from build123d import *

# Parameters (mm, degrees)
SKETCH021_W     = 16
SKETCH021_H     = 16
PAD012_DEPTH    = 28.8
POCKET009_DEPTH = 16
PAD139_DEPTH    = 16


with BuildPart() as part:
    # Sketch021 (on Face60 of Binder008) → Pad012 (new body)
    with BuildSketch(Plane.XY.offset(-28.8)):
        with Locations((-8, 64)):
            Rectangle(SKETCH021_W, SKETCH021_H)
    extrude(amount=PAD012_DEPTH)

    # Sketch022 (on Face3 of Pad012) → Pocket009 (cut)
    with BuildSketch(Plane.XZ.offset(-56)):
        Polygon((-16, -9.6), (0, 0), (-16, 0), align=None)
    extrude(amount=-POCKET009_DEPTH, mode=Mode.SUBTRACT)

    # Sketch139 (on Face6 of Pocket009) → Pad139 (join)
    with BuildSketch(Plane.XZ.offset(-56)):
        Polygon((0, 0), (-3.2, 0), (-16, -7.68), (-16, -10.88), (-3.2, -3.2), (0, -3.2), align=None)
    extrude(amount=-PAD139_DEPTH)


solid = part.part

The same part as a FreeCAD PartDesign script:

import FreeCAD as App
import Part
import Sketcher

V = App.Vector

doc = App.newDocument("Part")
body = doc.addObject("PartDesign::Body", "Body")

sketch1 = doc.addObject("Sketcher::SketchObject", "Sketch")
body.addObject(sketch1)
sketch1.AttachmentSupport = (doc.XY_Plane, [""])
sketch1.MapMode = "FlatFace"
sketch1.AttachmentOffset = App.Placement(V(0, 0, -28.8), App.Rotation())
sketch1.addGeometry(Part.LineSegment(V(-16, 72, 0), V(-16, 56, 0)), False)
sketch1.addGeometry(Part.LineSegment(V(-16, 56, 0), V(0, 56, 0)), False)
sketch1.addGeometry(Part.LineSegment(V(0, 56, 0), V(0, 72, 0)), False)
sketch1.addGeometry(Part.LineSegment(V(0, 72, 0), V(-16, 72, 0)), False)
sketch1.addConstraint(Sketcher.Constraint("Coincident", 0, 2, 1, 1))
sketch1.addConstraint(Sketcher.Constraint("Coincident", 1, 2, 2, 1))
sketch1.addConstraint(Sketcher.Constraint("Coincident", 2, 2, 3, 1))
sketch1.addConstraint(Sketcher.Constraint("Coincident", 3, 2, 0, 1))
sketch1.addConstraint(Sketcher.Constraint("Vertical", 0))
sketch1.addConstraint(Sketcher.Constraint("Horizontal", 1))
sketch1.addConstraint(Sketcher.Constraint("Vertical", 2))
sketch1.addConstraint(Sketcher.Constraint("Horizontal", 3))
sketch1.addConstraint(Sketcher.Constraint("PointOnObject", 1, 2, -2))
sketch1.addConstraint(Sketcher.Constraint("Equal", 3, 0))
sketch1.addConstraint(Sketcher.Constraint("DistanceX", 1, 1, 1, 2, 16.0))
sketch1.addConstraint(Sketcher.Constraint("DistanceY", -1, 1, 0, 2, 56.0))
pad1 = doc.addObject("PartDesign::Pad", "Pad")
body.addObject(pad1)
pad1.Profile = sketch1
pad1.Length = 28.8

sketch2 = doc.addObject("Sketcher::SketchObject", "Sketch001")
body.addObject(sketch2)
sketch2.AttachmentSupport = (doc.XZ_Plane, [""])
sketch2.MapMode = "FlatFace"
sketch2.AttachmentOffset = App.Placement(V(0, 0, -56), App.Rotation())
sketch2.addGeometry(Part.LineSegment(V(-16, -9.6, 0), V(0, 0, 0)), False)
sketch2.addGeometry(Part.LineSegment(V(0, 0, 0), V(-16, 0, 0)), False)
sketch2.addGeometry(Part.LineSegment(V(-16, 0, 0), V(-16, -9.6, 0)), False)
sketch2.addConstraint(Sketcher.Constraint("Coincident", 0, 2, 1, 1))
sketch2.addConstraint(Sketcher.Constraint("Coincident", 1, 2, 2, 1))
sketch2.addConstraint(Sketcher.Constraint("Coincident", 2, 2, 0, 1))
sketch2.addConstraint(Sketcher.Constraint("Horizontal", 1))
sketch2.addConstraint(Sketcher.Constraint("Vertical", 2))
sketch2.addConstraint(Sketcher.Constraint("Coincident", 0, 2, -1, 1))
sketch2.addConstraint(Sketcher.Constraint("DistanceX", 1, 2, 1, 1, 16.0))
sketch2.addConstraint(Sketcher.Constraint("DistanceY", 2, 2, 2, 1, 9.6))
pocket1 = doc.addObject("PartDesign::Pocket", "Pocket")
body.addObject(pocket1)
pocket1.Profile = sketch2
pocket1.Length = 16

sketch3 = doc.addObject("Sketcher::SketchObject", "Sketch002")
body.addObject(sketch3)
sketch3.AttachmentSupport = (doc.XZ_Plane, [""])
sketch3.MapMode = "FlatFace"
sketch3.AttachmentOffset = App.Placement(V(0, 0, -56), App.Rotation())
sketch3.addGeometry(Part.LineSegment(V(0, 0, 0), V(-3.2, 0, 0)), False)
sketch3.addGeometry(Part.LineSegment(V(-3.2, 0, 0), V(-16, -7.68, 0)), False)
sketch3.addGeometry(Part.LineSegment(V(-16, -7.68, 0), V(-16, -10.88, 0)), False)
sketch3.addGeometry(Part.LineSegment(V(-16, -10.88, 0), V(-3.2, -3.2, 0)), False)
sketch3.addGeometry(Part.LineSegment(V(-3.2, -3.2, 0), V(0, -3.2, 0)), False)
sketch3.addGeometry(Part.LineSegment(V(0, -3.2, 0), V(0, 0, 0)), False)
sketch3.addConstraint(Sketcher.Constraint("Coincident", 0, 2, 1, 1))
sketch3.addConstraint(Sketcher.Constraint("Coincident", 1, 2, 2, 1))
sketch3.addConstraint(Sketcher.Constraint("Coincident", 2, 2, 3, 1))
sketch3.addConstraint(Sketcher.Constraint("Coincident", 3, 2, 4, 1))
sketch3.addConstraint(Sketcher.Constraint("Coincident", 4, 2, 5, 1))
sketch3.addConstraint(Sketcher.Constraint("Coincident", 5, 2, 0, 1))
sketch3.addConstraint(Sketcher.Constraint("Horizontal", 0))
sketch3.addConstraint(Sketcher.Constraint("Vertical", 2))
sketch3.addConstraint(Sketcher.Constraint("Horizontal", 4))
sketch3.addConstraint(Sketcher.Constraint("Vertical", 5))
sketch3.addConstraint(Sketcher.Constraint("Coincident", 5, 2, -1, 1))
sketch3.addConstraint(Sketcher.Constraint("Parallel", 1, 3))
sketch3.addConstraint(Sketcher.Constraint("Vertical", 0, 2, 3, 2))
sketch3.addConstraint(Sketcher.Constraint("Equal", 4, 2))
sketch3.addConstraint(Sketcher.Constraint("DistanceX", 0, 2, 0, 1, 3.2))
sketch3.addConstraint(Sketcher.Constraint("DistanceX", 1, 2, -1, 1, 16.0))
sketch3.addConstraint(Sketcher.Constraint("DistanceY", 1, 2, -1, 1, 7.68))
pad2 = doc.addObject("PartDesign::Pad", "Pad001")
body.addObject(pad2)
pad2.Profile = sketch3
pad2.Length = 16
pad2.Reversed = True

doc.recompute()
